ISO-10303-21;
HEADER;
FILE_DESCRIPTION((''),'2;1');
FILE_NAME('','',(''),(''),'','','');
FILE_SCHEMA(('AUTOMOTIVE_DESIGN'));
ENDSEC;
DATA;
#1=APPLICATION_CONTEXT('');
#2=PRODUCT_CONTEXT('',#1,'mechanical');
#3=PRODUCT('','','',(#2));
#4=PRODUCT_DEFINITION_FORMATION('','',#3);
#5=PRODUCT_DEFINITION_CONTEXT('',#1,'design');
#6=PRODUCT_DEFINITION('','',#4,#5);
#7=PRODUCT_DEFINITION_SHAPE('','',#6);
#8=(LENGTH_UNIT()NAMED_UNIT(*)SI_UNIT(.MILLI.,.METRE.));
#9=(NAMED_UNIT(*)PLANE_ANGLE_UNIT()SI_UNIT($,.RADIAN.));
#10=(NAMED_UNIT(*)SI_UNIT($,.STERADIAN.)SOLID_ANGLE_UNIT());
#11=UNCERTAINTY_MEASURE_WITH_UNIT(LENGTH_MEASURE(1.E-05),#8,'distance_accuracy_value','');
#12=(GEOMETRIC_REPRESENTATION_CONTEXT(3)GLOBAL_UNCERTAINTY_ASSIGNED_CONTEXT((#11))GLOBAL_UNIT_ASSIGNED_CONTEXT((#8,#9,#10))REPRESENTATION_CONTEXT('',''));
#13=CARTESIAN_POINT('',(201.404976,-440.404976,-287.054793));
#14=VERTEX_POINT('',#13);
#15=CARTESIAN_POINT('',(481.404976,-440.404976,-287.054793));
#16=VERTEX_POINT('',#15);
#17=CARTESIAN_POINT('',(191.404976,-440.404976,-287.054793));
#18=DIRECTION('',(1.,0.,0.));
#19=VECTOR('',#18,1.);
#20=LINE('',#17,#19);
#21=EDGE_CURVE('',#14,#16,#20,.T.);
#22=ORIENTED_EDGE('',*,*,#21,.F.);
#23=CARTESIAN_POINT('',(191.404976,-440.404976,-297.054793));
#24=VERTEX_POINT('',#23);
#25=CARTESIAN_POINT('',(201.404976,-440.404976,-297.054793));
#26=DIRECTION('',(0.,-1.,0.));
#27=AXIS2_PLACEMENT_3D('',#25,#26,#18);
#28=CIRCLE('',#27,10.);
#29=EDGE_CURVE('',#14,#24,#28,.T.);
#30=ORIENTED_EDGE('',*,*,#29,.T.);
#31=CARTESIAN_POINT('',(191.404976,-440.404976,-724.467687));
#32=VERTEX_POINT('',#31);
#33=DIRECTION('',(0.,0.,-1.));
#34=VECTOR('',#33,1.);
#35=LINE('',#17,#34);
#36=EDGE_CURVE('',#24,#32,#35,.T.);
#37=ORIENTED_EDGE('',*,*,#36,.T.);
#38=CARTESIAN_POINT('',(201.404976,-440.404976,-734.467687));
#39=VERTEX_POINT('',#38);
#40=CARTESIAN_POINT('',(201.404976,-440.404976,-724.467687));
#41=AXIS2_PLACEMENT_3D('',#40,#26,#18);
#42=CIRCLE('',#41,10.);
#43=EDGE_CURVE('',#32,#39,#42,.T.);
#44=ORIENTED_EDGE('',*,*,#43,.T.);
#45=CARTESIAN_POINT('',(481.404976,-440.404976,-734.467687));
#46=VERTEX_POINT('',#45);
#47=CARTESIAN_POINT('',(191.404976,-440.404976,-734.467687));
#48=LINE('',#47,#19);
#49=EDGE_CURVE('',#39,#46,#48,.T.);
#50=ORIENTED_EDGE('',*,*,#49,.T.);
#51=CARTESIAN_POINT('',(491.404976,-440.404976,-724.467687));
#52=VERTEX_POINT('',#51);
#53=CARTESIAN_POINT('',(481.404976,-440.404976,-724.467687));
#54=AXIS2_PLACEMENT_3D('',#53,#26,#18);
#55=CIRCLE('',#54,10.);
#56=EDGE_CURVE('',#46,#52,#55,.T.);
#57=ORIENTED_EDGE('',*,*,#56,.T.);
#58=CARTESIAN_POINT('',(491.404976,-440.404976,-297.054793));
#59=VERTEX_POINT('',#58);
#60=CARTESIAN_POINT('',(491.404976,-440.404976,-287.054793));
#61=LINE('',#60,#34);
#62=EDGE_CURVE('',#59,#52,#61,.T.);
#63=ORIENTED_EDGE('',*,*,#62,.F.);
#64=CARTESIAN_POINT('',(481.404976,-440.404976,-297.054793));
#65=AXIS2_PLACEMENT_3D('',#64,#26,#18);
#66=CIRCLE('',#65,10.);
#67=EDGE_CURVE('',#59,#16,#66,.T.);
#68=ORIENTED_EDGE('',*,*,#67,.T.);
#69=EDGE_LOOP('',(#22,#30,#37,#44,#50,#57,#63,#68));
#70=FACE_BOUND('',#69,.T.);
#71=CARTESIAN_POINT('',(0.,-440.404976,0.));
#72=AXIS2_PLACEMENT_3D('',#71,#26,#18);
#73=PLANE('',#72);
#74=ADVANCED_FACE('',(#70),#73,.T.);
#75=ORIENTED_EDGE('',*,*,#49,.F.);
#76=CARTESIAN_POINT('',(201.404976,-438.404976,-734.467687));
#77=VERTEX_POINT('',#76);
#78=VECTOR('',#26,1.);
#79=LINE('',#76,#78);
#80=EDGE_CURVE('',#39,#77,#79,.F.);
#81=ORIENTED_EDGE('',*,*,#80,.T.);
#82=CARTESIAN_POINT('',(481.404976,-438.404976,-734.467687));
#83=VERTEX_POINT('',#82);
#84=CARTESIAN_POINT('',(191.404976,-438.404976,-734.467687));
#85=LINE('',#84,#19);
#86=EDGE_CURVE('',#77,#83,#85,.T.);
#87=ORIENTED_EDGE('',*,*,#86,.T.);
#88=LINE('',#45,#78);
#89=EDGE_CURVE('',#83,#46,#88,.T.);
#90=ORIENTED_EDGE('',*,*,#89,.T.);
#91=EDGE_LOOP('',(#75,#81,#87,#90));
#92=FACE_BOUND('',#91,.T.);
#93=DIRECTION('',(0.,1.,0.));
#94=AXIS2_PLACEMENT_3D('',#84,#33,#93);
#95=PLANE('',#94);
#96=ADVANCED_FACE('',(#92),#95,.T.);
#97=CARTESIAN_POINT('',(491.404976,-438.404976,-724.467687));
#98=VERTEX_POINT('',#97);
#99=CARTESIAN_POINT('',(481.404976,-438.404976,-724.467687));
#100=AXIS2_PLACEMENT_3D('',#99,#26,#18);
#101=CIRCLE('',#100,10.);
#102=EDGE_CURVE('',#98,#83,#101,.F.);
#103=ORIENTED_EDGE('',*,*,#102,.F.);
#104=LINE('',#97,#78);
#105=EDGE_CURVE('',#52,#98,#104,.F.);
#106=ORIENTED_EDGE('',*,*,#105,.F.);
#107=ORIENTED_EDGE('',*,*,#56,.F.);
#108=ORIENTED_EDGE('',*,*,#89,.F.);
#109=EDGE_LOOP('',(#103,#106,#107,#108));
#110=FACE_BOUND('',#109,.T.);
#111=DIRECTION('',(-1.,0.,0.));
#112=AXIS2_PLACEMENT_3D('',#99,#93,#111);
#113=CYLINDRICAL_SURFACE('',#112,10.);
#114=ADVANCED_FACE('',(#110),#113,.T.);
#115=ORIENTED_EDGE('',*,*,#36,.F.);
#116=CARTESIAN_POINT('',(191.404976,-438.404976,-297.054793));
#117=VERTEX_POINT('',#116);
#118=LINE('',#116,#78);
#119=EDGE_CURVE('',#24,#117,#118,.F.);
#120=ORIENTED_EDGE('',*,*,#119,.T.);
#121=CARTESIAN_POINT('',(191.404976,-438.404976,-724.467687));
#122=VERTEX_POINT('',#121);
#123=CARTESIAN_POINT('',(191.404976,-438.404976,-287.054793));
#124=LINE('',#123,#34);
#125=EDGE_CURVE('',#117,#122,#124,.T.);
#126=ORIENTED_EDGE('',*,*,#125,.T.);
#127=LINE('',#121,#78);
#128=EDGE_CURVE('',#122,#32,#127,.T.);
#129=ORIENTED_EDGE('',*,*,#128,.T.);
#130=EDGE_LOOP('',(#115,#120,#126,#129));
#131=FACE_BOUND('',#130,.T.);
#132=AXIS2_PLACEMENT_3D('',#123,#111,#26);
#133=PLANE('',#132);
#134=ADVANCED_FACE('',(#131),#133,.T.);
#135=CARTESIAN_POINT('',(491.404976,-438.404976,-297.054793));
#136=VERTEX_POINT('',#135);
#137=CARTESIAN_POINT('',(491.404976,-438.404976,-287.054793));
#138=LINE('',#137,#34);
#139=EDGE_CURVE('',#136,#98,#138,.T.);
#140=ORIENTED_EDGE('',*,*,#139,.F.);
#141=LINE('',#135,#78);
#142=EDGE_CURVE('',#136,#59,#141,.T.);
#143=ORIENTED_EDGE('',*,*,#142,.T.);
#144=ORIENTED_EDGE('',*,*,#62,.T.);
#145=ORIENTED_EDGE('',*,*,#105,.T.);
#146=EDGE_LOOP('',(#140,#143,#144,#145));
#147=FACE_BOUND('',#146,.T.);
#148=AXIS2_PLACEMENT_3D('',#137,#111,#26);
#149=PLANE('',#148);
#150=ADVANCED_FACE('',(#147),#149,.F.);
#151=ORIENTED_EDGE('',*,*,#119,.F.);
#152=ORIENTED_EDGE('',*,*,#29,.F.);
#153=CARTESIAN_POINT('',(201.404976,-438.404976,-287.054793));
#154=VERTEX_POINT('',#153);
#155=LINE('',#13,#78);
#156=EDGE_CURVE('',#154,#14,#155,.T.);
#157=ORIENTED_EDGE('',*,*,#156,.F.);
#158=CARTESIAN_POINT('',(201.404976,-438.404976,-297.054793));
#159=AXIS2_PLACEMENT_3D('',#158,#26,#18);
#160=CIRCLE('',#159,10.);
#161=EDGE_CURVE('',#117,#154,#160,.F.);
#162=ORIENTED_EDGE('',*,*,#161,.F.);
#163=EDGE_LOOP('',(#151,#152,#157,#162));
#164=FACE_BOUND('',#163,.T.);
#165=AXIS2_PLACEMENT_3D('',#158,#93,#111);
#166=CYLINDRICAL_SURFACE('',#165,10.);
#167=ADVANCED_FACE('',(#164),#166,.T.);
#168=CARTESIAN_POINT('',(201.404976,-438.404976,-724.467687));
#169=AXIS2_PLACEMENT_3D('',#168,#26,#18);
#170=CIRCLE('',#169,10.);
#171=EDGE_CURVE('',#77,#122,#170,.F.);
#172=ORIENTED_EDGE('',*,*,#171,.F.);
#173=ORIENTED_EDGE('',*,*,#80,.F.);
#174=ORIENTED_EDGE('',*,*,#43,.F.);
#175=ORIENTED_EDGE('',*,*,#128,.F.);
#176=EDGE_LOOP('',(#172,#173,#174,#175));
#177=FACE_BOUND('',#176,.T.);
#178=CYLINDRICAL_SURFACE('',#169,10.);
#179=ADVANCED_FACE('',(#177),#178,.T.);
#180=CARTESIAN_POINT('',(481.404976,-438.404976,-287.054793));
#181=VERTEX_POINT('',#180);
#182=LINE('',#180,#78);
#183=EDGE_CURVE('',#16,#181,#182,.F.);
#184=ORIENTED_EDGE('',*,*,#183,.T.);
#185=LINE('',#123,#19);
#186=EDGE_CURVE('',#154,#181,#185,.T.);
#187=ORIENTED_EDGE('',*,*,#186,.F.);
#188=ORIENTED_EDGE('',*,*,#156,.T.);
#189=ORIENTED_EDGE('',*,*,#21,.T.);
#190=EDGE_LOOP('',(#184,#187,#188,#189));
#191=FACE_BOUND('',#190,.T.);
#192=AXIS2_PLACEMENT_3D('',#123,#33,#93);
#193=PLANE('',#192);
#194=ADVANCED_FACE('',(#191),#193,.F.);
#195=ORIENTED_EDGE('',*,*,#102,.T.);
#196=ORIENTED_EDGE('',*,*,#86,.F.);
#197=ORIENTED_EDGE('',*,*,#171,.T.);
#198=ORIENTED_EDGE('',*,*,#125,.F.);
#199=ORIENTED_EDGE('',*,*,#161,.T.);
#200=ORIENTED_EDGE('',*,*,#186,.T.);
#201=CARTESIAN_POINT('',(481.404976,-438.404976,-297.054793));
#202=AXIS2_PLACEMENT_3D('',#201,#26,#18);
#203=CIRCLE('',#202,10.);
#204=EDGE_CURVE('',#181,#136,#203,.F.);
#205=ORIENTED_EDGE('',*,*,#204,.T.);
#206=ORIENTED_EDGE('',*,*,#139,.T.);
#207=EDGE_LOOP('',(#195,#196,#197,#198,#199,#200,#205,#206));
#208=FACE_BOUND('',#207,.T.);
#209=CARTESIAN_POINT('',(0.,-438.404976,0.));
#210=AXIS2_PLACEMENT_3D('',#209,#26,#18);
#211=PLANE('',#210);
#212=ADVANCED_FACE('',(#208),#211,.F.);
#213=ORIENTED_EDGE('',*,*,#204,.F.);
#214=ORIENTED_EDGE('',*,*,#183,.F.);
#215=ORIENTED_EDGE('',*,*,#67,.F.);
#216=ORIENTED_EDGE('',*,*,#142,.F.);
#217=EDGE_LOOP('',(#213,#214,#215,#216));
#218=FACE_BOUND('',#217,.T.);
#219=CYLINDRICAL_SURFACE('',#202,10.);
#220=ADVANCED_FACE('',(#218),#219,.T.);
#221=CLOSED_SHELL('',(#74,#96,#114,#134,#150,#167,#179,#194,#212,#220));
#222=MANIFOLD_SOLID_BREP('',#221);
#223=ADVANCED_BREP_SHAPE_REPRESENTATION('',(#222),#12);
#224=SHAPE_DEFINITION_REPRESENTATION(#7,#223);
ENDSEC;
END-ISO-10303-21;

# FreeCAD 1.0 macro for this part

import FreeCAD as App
import Part
import Sketcher


def edges_at(feature, points):
    """Names of the edges that pass closest to the given points."""
    edges = feature.Shape.Edges
    near = lambda p: min(range(len(edges)), key=lambda i: edges[i].distToShape(Part.Vertex(*p))[0])
    return sorted({f"Edge{near(p) + 1}" for p in points})

doc = App.newDocument("Part")
params = doc.addObject("Spreadsheet::Sheet", "Params")
for row, (alias, value) in enumerate([
    ("sketch1_width", "300 mm"),
    ("pad1_length", "2 mm"),
    ("fillet_radius", "10 mm"),
], start=1):
    params.set(f"A{row}", alias)
    params.set(f"B{row}", "=" + value)
    params.setAlias(f"B{row}", alias)

body = doc.addObject("PartDesign::Body", "Body")

sketch1 = body.newObject("Sketcher::SketchObject", "Sketch")
sketch1.AttachmentSupport = (doc.getObject("XZ_Plane"), [""])
sketch1.MapMode = "FlatFace"
sketch1.AttachmentOffset = App.Placement(App.Vector(0, 0, 440.404976), App.Rotation())
sketch1.addGeometry(Part.LineSegment(App.Vector(191.404976, -287.054793, 0), App.Vector(491.404976, -287.054793, 0)), False)
sketch1.addGeometry(Part.LineSegment(App.Vector(491.404976, -287.054793, 0), App.Vector(491.404976, -734.467687, 0)), False)
sketch1.addGeometry(Part.LineSegment(App.Vector(491.404976, -734.467687, 0), App.Vector(191.404976, -734.467687, 0)), False)
sketch1.addGeometry(Part.LineSegment(App.Vector(191.404976, -734.467687, 0), App.Vector(191.404976, -287.054793, 0)), False)
sketch1.addConstraint(Sketcher.Constraint("Coincident", 0, 2, 1, 1))
sketch1.addConstraint(Sketcher.Constraint("Coincident", 1, 2, 2, 1))
sketch1.addConstraint(Sketcher.Constraint("Coincident", 2, 2, 3, 1))
sketch1.addConstraint(Sketcher.Constraint("Coincident", 3, 2, 0, 1))
sketch1.addConstraint(Sketcher.Constraint("Horizontal", 0))
sketch1.addConstraint(Sketcher.Constraint("Vertical", 1))
sketch1.addConstraint(Sketcher.Constraint("Horizontal", 2))
sketch1.addConstraint(Sketcher.Constraint("Vertical", 3))
sketch1.addConstraint(Sketcher.Constraint("DistanceX", 0, 1, 0, 2, 300.0))
sketch1.addConstraint(Sketcher.Constraint("DistanceY", 1, 2, 1, 1, 447.412894))
sketch1.addConstraint(Sketcher.Constraint("DistanceX", -1, 1, 0, 2, 491.404976))
sketch1.addConstraint(Sketcher.Constraint("DistanceY", 0, 2, -1, 1, 287.054793))
sketch1.setExpression("Constraints[8]", "Params.sketch1_width")
pad1 = body.newObject("PartDesign::Pad", "Pad")
pad1.Profile = sketch1
pad1.setExpression("Length", "Params.pad1_length")
pad1.Reversed = True
doc.recompute()

fillet = body.newObject("PartDesign::Fillet", "Fillet")
fillet.Base = (pad1, edges_at(pad1, [
    (191.405, -439.405, -287.055),
    (491.405, -439.405, -287.055),
    (491.405, -439.405, -734.468),
    (191.405, -439.405, -734.468),
]))
fillet.setExpression("Radius", "Params.fillet_radius")

doc.recompute()
